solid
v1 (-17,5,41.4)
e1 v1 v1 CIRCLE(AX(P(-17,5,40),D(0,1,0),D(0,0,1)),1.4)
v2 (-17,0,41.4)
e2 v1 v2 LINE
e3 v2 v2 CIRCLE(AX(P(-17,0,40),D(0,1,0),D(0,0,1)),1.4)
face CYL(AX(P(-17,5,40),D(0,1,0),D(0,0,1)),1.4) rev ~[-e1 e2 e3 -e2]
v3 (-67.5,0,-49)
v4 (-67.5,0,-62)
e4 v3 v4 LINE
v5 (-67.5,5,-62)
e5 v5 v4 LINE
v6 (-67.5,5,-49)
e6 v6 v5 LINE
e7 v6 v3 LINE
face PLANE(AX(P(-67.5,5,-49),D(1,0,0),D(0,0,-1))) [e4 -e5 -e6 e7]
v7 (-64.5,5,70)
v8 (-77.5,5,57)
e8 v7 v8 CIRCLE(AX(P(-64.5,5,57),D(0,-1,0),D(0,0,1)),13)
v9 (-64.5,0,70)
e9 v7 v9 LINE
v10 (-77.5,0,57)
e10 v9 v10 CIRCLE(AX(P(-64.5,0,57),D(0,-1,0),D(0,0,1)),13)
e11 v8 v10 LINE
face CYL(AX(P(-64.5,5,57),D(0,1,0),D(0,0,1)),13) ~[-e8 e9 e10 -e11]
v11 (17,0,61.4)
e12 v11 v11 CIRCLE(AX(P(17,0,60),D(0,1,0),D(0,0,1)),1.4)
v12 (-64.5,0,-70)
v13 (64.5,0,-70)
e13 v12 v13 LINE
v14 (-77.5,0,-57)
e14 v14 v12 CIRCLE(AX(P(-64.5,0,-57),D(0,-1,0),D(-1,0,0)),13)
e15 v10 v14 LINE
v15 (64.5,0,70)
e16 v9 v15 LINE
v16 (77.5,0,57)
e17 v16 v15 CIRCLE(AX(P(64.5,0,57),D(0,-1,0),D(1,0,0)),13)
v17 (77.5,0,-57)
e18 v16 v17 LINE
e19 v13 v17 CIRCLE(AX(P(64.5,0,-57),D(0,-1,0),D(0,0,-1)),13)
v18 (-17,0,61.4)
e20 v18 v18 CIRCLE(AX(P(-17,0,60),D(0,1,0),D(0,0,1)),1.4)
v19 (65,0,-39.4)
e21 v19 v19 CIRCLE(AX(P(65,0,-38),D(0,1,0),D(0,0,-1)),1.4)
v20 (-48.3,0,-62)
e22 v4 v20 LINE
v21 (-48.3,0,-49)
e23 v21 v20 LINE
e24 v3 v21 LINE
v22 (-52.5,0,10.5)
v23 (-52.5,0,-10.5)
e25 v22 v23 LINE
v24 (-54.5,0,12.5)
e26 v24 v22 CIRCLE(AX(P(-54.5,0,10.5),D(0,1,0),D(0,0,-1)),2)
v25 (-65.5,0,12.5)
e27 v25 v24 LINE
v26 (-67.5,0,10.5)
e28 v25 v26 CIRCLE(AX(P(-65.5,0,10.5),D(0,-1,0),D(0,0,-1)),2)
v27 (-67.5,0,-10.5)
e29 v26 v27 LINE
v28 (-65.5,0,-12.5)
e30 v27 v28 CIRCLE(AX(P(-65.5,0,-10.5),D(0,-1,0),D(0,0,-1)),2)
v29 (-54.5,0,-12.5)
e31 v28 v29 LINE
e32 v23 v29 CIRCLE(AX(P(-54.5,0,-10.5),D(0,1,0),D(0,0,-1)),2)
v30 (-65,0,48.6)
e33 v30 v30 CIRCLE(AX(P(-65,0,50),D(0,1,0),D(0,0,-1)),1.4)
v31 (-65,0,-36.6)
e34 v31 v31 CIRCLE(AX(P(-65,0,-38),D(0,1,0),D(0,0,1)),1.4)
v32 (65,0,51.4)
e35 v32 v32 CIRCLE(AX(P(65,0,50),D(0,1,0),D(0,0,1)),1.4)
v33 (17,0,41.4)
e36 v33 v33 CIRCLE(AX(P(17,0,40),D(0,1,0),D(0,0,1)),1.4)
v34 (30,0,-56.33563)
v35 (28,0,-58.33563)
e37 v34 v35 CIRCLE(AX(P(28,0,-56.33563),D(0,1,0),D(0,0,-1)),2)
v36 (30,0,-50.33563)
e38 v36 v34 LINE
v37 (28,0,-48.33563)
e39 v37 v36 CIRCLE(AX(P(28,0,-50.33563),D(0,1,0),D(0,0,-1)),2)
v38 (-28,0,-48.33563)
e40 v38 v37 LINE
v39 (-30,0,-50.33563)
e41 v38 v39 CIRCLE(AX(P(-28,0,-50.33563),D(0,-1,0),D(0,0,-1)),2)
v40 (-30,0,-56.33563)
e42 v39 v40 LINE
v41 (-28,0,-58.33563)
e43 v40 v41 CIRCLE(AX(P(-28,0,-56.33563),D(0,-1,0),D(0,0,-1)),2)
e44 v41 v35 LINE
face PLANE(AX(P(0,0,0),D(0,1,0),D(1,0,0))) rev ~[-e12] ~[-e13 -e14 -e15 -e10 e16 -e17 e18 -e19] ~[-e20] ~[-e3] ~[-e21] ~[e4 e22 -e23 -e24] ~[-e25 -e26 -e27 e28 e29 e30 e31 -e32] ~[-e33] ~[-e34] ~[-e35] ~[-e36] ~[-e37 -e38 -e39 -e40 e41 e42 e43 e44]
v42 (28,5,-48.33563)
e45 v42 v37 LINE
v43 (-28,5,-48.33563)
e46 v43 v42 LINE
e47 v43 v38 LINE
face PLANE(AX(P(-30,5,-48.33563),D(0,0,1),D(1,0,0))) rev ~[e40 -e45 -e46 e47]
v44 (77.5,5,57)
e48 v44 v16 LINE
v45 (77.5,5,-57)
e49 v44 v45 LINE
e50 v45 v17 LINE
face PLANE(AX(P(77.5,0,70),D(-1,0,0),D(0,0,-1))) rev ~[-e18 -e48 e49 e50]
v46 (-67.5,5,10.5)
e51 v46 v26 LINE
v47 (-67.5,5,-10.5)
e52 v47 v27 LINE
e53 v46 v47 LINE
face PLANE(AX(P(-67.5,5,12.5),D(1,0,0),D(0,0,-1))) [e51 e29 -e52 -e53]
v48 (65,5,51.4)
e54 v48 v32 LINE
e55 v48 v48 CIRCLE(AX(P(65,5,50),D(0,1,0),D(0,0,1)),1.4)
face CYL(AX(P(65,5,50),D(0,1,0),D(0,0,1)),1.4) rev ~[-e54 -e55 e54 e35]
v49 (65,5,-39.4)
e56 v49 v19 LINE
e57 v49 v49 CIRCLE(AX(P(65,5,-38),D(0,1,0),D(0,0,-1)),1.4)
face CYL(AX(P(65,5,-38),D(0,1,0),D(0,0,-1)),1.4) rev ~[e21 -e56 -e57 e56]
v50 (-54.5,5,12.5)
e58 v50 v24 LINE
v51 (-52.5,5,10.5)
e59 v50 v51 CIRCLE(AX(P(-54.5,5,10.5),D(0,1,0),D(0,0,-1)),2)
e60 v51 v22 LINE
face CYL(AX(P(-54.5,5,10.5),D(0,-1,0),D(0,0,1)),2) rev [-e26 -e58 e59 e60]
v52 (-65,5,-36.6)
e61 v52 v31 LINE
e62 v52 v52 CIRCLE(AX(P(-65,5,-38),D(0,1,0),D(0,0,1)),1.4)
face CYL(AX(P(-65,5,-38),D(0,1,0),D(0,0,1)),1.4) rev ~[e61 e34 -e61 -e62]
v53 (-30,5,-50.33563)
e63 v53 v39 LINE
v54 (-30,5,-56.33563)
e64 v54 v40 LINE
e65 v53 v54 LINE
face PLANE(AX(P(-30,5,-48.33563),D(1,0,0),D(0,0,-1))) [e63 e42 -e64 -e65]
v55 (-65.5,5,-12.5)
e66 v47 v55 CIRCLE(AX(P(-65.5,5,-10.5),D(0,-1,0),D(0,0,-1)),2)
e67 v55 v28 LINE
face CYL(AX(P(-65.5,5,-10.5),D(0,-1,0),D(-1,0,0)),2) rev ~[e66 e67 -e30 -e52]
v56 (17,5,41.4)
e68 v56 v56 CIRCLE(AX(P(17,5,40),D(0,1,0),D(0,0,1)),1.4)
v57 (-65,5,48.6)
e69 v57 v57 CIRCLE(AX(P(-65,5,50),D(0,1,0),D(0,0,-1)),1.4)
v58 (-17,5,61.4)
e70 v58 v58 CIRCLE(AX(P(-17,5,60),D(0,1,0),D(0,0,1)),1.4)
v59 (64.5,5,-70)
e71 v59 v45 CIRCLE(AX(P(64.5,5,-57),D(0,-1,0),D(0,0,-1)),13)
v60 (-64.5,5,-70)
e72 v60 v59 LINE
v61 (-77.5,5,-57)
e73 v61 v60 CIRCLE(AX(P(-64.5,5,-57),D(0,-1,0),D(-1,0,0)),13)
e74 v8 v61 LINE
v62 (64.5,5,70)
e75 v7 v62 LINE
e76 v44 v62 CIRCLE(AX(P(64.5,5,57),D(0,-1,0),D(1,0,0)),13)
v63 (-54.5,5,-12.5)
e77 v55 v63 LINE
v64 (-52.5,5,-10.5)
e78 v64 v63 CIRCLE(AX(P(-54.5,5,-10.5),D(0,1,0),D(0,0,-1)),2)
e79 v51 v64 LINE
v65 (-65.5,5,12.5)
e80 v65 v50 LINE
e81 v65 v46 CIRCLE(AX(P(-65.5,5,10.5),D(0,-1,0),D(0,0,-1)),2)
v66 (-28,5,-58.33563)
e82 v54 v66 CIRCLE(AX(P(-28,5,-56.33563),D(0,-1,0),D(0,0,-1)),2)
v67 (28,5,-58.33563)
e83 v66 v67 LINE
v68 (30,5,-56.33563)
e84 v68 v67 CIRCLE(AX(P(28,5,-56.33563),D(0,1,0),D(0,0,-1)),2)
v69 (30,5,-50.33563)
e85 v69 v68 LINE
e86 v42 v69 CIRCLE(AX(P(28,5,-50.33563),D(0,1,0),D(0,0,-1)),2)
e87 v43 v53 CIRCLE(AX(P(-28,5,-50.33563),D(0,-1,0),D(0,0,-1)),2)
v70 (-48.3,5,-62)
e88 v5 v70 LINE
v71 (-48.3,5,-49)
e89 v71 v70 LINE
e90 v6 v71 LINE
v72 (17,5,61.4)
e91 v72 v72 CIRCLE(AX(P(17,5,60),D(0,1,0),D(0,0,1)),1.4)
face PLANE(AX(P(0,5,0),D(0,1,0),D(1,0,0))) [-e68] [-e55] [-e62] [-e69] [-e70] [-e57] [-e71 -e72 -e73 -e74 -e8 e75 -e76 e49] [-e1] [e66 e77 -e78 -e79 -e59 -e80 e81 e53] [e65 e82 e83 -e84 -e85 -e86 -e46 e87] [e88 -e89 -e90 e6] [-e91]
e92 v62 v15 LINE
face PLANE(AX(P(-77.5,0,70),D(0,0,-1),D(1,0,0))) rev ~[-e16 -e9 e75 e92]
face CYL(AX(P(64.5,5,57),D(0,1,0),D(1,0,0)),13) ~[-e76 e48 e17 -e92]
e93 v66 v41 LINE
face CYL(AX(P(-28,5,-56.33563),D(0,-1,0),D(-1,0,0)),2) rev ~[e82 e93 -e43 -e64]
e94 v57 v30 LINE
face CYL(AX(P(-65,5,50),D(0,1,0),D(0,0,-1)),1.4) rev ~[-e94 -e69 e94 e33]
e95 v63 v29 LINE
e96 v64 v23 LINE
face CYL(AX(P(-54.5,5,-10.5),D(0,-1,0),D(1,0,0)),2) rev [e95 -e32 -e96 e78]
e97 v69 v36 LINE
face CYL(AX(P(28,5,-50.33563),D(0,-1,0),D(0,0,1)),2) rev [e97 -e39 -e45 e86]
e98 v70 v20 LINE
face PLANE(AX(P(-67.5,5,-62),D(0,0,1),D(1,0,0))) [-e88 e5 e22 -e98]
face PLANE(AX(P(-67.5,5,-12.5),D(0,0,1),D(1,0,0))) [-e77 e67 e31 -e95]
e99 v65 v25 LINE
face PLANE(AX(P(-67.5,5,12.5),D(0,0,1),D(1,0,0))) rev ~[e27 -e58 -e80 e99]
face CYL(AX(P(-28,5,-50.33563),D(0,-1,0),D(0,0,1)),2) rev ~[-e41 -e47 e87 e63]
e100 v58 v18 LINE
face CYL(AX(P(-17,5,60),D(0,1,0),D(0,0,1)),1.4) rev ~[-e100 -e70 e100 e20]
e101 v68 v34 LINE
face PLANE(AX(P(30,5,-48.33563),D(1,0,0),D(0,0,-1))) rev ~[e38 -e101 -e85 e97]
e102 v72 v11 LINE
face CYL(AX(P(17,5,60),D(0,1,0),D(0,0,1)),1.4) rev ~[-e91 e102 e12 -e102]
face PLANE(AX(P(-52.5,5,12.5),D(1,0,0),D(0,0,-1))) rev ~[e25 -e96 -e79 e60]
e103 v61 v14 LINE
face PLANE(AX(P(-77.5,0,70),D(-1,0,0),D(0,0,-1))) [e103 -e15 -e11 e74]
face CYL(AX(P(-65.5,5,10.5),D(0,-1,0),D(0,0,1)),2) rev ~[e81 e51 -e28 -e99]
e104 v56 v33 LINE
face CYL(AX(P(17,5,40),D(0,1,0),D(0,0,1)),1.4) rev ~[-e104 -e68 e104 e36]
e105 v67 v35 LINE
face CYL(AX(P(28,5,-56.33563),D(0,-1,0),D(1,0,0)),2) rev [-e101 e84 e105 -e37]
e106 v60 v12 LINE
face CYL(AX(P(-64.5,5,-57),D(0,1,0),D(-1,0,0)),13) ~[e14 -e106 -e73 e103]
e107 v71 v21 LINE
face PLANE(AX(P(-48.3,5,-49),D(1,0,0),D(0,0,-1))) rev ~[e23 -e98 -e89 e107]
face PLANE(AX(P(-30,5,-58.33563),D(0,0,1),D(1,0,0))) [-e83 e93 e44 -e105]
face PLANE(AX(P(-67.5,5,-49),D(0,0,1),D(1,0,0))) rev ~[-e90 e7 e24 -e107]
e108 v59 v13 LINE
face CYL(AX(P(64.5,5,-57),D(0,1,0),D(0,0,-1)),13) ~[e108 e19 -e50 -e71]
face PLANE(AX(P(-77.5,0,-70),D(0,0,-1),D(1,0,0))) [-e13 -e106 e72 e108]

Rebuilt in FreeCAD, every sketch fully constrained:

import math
import FreeCAD as App
import Part
import Sketcher

V = App.Vector
Q = App.Units.Quantity


def edges_at(feature, points):
    """Names of the edges that pass closest to the given points."""
    edges = feature.Shape.Edges
    near = lambda p: min(range(len(edges)), key=lambda i: edges[i].distToShape(Part.Vertex(*p))[0])
    return sorted({f"Edge{near(p) + 1}" for p in points})


def add_polygon(sketch, points):
    """Adds a closed chain of lines whose ends are joined by coincident constraints."""
    first, n = sketch.GeometryCount, len(points)
    for a, b in zip(points, points[1:] + points[:1]):
        sketch.addGeometry(Part.LineSegment(App.Vector(*a, 0), App.Vector(*b, 0)), False)
    for i in range(n):
        sketch.addConstraint(Sketcher.Constraint("Coincident", first + i, 2, first + (i + 1) % n, 1))

doc = App.newDocument("Part")
body = doc.addObject("PartDesign::Body", "Body")

# Sketch on XZ plane
sketch1 = body.newObject("Sketcher::SketchObject", "Sketch")
sketch1.AttachmentSupport = (doc.getObject("XZ_Plane"), [""])
sketch1.MapMode = "FlatFace"
add_polygon(sketch1, [(-78, -70), (-78, 70), (78, 70), (78, -70)])  # lines 0-3
sketch1.addConstraint(Sketcher.Constraint("Vertical", 0))
sketch1.addConstraint(Sketcher.Constraint("Horizontal", 1))
sketch1.addConstraint(Sketcher.Constraint("Vertical", 2))
sketch1.addConstraint(Sketcher.Constraint("Horizontal", 3))
sketch1.addConstraint(Sketcher.Constraint("Symmetric", 0, 2, 2, 2, -1, 1))
sketch1.addConstraint(Sketcher.Constraint("DistanceX", 1, 1, 1, 2, Q("155 mm")))
sketch1.addConstraint(Sketcher.Constraint("DistanceY", 0, 1, 0, 2, Q("140 mm")))
pad1 = body.newObject("PartDesign::Pad", "Pad")
pad1.Profile = sketch1
pad1.Length = 5
pad1.Reversed = True

# Sketch on XZ plane
sketch2 = body.newObject("Sketcher::SketchObject", "Sketch001")
sketch2.AttachmentSupport = (doc.getObject("XZ_Plane"), [""])
sketch2.MapMode = "FlatFace"
sketch2.AttachmentOffset = App.Placement(V(0, 0, -5), App.Rotation())
sketch2.addGeometry(Part.LineSegment(V(-78, -70, 0), V(-78, -57, 0)), False)
sketch2.addGeometry(Part.ArcOfCircle(Part.Circle(V(-64, -57, 0), V(0, 0, 1), 13), math.radians(-180), math.radians(-90)), False)
sketch2.addGeometry(Part.LineSegment(V(-64, -70, 0), V(-78, -70, 0)), False)
sketch2.addGeometry(Part.LineSegment(V(78, -70, 0), V(64, -70, 0)), False)
sketch2.addGeometry(Part.ArcOfCircle(Part.Circle(V(64, -57, 0), V(0, 0, 1), 13), math.radians(-90), math.radians(0)), False)
sketch2.addGeometry(Part.LineSegment(V(78, -57, 0), V(78, -70, 0)), False)
sketch2.addGeometry(Part.LineSegment(V(78, 70, 0), V(78, 57, 0)), False)
sketch2.addGeometry(Part.ArcOfCircle(Part.Circle(V(64, 57, 0), V(0, 0, 1), 13), math.radians(0), math.radians(90)), False)
sketch2.addGeometry(Part.LineSegment(V(64, 70, 0), V(78, 70, 0)), False)
sketch2.addGeometry(Part.LineSegment(V(-78, 70, 0), V(-64, 70, 0)), False)
sketch2.addGeometry(Part.ArcOfCircle(Part.Circle(V(-64, 57, 0), V(0, 0, 1), 13), math.radians(90), math.radians(180)), False)
sketch2.addGeometry(Part.LineSegment(V(-78, 57, 0), V(-78, 70, 0)), False)
sketch2.addConstraint(Sketcher.Constraint("Tangent", 0, 2, 1, 1))
sketch2.addConstraint(Sketcher.Constraint("Tangent", 1, 2, 2, 1))
sketch2.addConstraint(Sketcher.Constraint("Coincident", 2, 2, 0, 1))
sketch2.addConstraint(Sketcher.Constraint("Tangent", 3, 2, 4, 1))
sketch2.addConstraint(Sketcher.Constraint("Tangent", 4, 2, 5, 1))
sketch2.addConstraint(Sketcher.Constraint("Coincident", 5, 2, 3, 1))
sketch2.addConstraint(Sketcher.Constraint("Tangent", 6, 2, 7, 1))
sketch2.addConstraint(Sketcher.Constraint("Tangent", 7, 2, 8, 1))
sketch2.addConstraint(Sketcher.Constraint("Coincident", 8, 2, 6, 1))
sketch2.addConstraint(Sketcher.Constraint("Tangent", 9, 2, 10, 1))
sketch2.addConstraint(Sketcher.Constraint("Tangent", 10, 2, 11, 1))
sketch2.addConstraint(Sketcher.Constraint("Coincident", 11, 2, 9, 1))
sketch2.addConstraint(Sketcher.Constraint("Vertical", 0))
sketch2.addConstraint(Sketcher.Constraint("Horizontal", 2))
sketch2.addConstraint(Sketcher.Constraint("Horizontal", 3))
sketch2.addConstraint(Sketcher.Constraint("Vertical", 5))
sketch2.addConstraint(Sketcher.Constraint("Vertical", 6))
sketch2.addConstraint(Sketcher.Constraint("Horizontal", 8))
sketch2.addConstraint(Sketcher.Constraint("Horizontal", 9))
sketch2.addConstraint(Sketcher.Constraint("Vertical", 11))
sketch2.addConstraint(Sketcher.Constraint("Equal", 1, 4))
sketch2.addConstraint(Sketcher.Constraint("Equal", 4, 7))
sketch2.addConstraint(Sketcher.Constraint("Equal", 7, 10))
sketch2.addConstraint(Sketcher.Constraint("Symmetric", 1, 3, 7, 3, -1, 1))
sketch2.addConstraint(Sketcher.Constraint("Symmetric", 4, 3, 10, 3, -1, 1))
sketch2.addConstraint(Sketcher.Constraint("Symmetric", 1, 3, 4, 3, -2))
sketch2.addConstraint(Sketcher.Constraint("Radius", 1, Q("13 mm")))
sketch2.addConstraint(Sketcher.Constraint("DistanceY", 1, 3, -1, 1, Q("57 mm")))
sketch2.addConstraint(Sketcher.Constraint("DistanceX", 1, 3, 4, 3, Q("129 mm")))
pocket1 = body.newObject("PartDesign::Pocket", "Pocket")
pocket1.Profile = sketch2
pocket1.Length = 5
pocket1.Reversed = True

# Sketch on XZ plane
sketch3 = body.newObject("Sketcher::SketchObject", "Sketch002")
sketch3.AttachmentSupport = (doc.getObject("XZ_Plane"), [""])
sketch3.MapMode = "FlatFace"
sketch3.AttachmentOffset = App.Placement(V(0, 0, -5), App.Rotation())
sketch3.addGeometry(Part.Circle(V(-65, -38, 0), V(0, 0, 1), 1.4), False)
sketch3.addGeometry(Part.Circle(V(65, -38, 0), V(0, 0, 1), 1.4), False)
sketch3.addGeometry(Part.Circle(V(65, 50, 0), V(0, 0, 1), 1.4), False)
sketch3.addGeometry(Part.Circle(V(-65, 50, 0), V(0, 0, 1), 1.4), False)
sketch3.addConstraint(Sketcher.Constraint("Equal", 0, 1))
sketch3.addConstraint(Sketcher.Constraint("Equal", 1, 2))
sketch3.addConstraint(Sketcher.Constraint("Equal", 2, 3))
sketch3.addConstraint(Sketcher.Constraint("Symmetric", 0, 3, 1, 3, -2))
sketch3.addConstraint(Sketcher.Constraint("Symmetric", 2, 3, 3, 3, -2))
sketch3.addConstraint(Sketcher.Constraint("Vertical", 1, 3, 2, 3))
sketch3.addConstraint(Sketcher.Constraint("Diameter", 0, Q("2.8 mm")))
sketch3.addConstraint(Sketcher.Constraint("DistanceX", 0, 3, -1, 1, Q("65 mm")))
sketch3.addConstraint(Sketcher.Constraint("DistanceY", 0, 3, -1, 1, Q("38 mm")))
sketch3.addConstraint(Sketcher.Constraint("DistanceY", -1, 1, 2, 3, Q("50 mm")))
pocket2 = body.newObject("PartDesign::Pocket", "Pocket001")
pocket2.Profile = sketch3
pocket2.Length = 5
pocket2.Reversed = True

# Sketch on XZ plane
sketch4 = body.newObject("Sketcher::SketchObject", "Sketch003")
sketch4.AttachmentSupport = (doc.getObject("XZ_Plane"), [""])
sketch4.MapMode = "FlatFace"
sketch4.AttachmentOffset = App.Placement(V(0, 0, -5), App.Rotation())
add_polygon(sketch4, [(-30, -58), (-30, -48), (30, -48), (30, -58)])  # lines 0-3
sketch4.addConstraint(Sketcher.Constraint("Vertical", 0))
sketch4.addConstraint(Sketcher.Constraint("Horizontal", 1))
sketch4.addConstraint(Sketcher.Constraint("Vertical", 2))
sketch4.addConstraint(Sketcher.Constraint("Horizontal", 3))
sketch4.addConstraint(Sketcher.Constraint("DistanceX", 1, 1, 1, 2, Q("60 mm")))
sketch4.addConstraint(Sketcher.Constraint("DistanceY", 0, 1, 0, 2, Q("10 mm")))
sketch4.addConstraint(Sketcher.Constraint("DistanceX", 0, 2, -1, 1, Q("30 mm")))
sketch4.addConstraint(Sketcher.Constraint("DistanceY", 0, 2, -1, 1, Q("48.33563 mm")))
pocket3 = body.newObject("PartDesign::Pocket", "Pocket002")
pocket3.Profile = sketch4
pocket3.Length = 5
pocket3.Reversed = True

# Sketch on XZ plane
sketch5 = body.newObject("Sketcher::SketchObject", "Sketch004")
sketch5.AttachmentSupport = (doc.getObject("XZ_Plane"), [""])
sketch5.MapMode = "FlatFace"
sketch5.AttachmentOffset = App.Placement(V(0, 0, -5), App.Rotation())
sketch5.addGeometry(Part.Circle(V(-17, 40, 0), V(0, 0, 1), 1.4), False)
sketch5.addGeometry(Part.Circle(V(17, 40, 0), V(0, 0, 1), 1.4), False)
sketch5.addGeometry(Part.Circle(V(17, 60, 0), V(0, 0, 1), 1.4), False)
sketch5.addGeometry(Part.Circle(V(-17, 60, 0), V(0, 0, 1), 1.4), False)
sketch5.addConstraint(Sketcher.Constraint("Equal", 0, 1))
sketch5.addConstraint(Sketcher.Constraint("Equal", 1, 2))
sketch5.addConstraint(Sketcher.Constraint("Equal", 2, 3))
sketch5.addConstraint(Sketcher.Constraint("Symmetric", 0, 3, 1, 3, -2))
sketch5.addConstraint(Sketcher.Constraint("Symmetric", 2, 3, 3, 3, -2))
sketch5.addConstraint(Sketcher.Constraint("Vertical", 1, 3, 2, 3))
sketch5.addConstraint(Sketcher.Constraint("Diameter", 0, Q("2.8 mm")))
sketch5.addConstraint(Sketcher.Constraint("DistanceX", 0, 3, -1, 1, Q("17 mm")))
sketch5.addConstraint(Sketcher.Constraint("DistanceY", -1, 1, 0, 3, Q("40 mm")))
sketch5.addConstraint(Sketcher.Constraint("DistanceY", -1, 1, 2, 3, Q("60 mm")))
pocket4 = body.newObject("PartDesign::Pocket", "Pocket003")
pocket4.Profile = sketch5
pocket4.Length = 10
pocket4.Reversed = True

# Sketch on XZ plane
sketch6 = body.newObject("Sketcher::SketchObject", "Sketch005")
sketch6.AttachmentSupport = (doc.getObject("XZ_Plane"), [""])
sketch6.MapMode = "FlatFace"
sketch6.AttachmentOffset = App.Placement(V(0, 0, -5), App.Rotation())
add_polygon(sketch6, [(-68, -12), (-68, 12), (-52, 12), (-52, -12)])  # lines 0-3
sketch6.addConstraint(Sketcher.Constraint("Vertical", 0))
sketch6.addConstraint(Sketcher.Constraint("Horizontal", 1))
sketch6.addConstraint(Sketcher.Constraint("Vertical", 2))
sketch6.addConstraint(Sketcher.Constraint("Horizontal", 3))
sketch6.addConstraint(Sketcher.Constraint("DistanceX", 1, 1, 1, 2, Q("15 mm")))
sketch6.addConstraint(Sketcher.Constraint("DistanceY", 0, 1, 0, 2, Q("25 mm")))
sketch6.addConstraint(Sketcher.Constraint("DistanceX", 0, 2, -1, 1, Q("67.5 mm")))
sketch6.addConstraint(Sketcher.Constraint("DistanceY", -1, 1, 0, 2, Q("12.5 mm")))
pocket5 = body.newObject("PartDesign::Pocket", "Pocket004")
pocket5.Profile = sketch6
pocket5.Length = 10
pocket5.Reversed = True

# Sketch on XZ plane
sketch7 = body.newObject("Sketcher::SketchObject", "Sketch006")
sketch7.AttachmentSupport = (doc.getObject("XZ_Plane"), [""])
sketch7.MapMode = "FlatFace"
sketch7.AttachmentOffset = App.Placement(V(0, 0, -5), App.Rotation())
add_polygon(sketch7, [(-68, -62), (-68, -49), (-48, -49), (-48, -62)])  # lines 0-3
sketch7.addConstraint(Sketcher.Constraint("Vertical", 0))
sketch7.addConstraint(Sketcher.Constraint("Horizontal", 1))
sketch7.addConstraint(Sketcher.Constraint("Vertical", 2))
sketch7.addConstraint(Sketcher.Constraint("Horizontal", 3))
sketch7.addConstraint(Sketcher.Constraint("DistanceY", 0, 1, 0, 2, Q("13 mm")))
sketch7.addConstraint(Sketcher.Constraint("DistanceX", 1, 1, 1, 2, Q("19.2 mm")))
sketch7.addConstraint(Sketcher.Constraint("DistanceY", 0, 2, -1, 1, Q("49 mm")))
sketch7.addConstraint(Sketcher.Constraint("DistanceX", 0, 2, -1, 1, Q("67.5 mm")))
pocket6 = body.newObject("PartDesign::Pocket", "Pocket005")
pocket6.Profile = sketch7
pocket6.Length = 10
pocket6.Reversed = True
doc.recompute()

fillet = body.newObject("PartDesign::Fillet", "Fillet")
fillet.Base = (pocket6, edges_at(pocket6, [
    (-52.5, 2.5, -12.5),
    (-52.5, 2.5, 12.5),
    (-67.5, 2.5, 12.5),
    (-67.5, 2.5, -12.5),
]))
fillet.Radius = 2
doc.recompute()

fillet2 = body.newObject("PartDesign::Fillet", "Fillet001")
fillet2.Base = (fillet, edges_at(fillet, [
    (30, 2.5, -58.336),
    (30, 2.5, -48.336),
    (-30, 2.5, -48.336),
    (-30, 2.5, -58.336),
]))
fillet2.Radius = 2

doc.recompute()
